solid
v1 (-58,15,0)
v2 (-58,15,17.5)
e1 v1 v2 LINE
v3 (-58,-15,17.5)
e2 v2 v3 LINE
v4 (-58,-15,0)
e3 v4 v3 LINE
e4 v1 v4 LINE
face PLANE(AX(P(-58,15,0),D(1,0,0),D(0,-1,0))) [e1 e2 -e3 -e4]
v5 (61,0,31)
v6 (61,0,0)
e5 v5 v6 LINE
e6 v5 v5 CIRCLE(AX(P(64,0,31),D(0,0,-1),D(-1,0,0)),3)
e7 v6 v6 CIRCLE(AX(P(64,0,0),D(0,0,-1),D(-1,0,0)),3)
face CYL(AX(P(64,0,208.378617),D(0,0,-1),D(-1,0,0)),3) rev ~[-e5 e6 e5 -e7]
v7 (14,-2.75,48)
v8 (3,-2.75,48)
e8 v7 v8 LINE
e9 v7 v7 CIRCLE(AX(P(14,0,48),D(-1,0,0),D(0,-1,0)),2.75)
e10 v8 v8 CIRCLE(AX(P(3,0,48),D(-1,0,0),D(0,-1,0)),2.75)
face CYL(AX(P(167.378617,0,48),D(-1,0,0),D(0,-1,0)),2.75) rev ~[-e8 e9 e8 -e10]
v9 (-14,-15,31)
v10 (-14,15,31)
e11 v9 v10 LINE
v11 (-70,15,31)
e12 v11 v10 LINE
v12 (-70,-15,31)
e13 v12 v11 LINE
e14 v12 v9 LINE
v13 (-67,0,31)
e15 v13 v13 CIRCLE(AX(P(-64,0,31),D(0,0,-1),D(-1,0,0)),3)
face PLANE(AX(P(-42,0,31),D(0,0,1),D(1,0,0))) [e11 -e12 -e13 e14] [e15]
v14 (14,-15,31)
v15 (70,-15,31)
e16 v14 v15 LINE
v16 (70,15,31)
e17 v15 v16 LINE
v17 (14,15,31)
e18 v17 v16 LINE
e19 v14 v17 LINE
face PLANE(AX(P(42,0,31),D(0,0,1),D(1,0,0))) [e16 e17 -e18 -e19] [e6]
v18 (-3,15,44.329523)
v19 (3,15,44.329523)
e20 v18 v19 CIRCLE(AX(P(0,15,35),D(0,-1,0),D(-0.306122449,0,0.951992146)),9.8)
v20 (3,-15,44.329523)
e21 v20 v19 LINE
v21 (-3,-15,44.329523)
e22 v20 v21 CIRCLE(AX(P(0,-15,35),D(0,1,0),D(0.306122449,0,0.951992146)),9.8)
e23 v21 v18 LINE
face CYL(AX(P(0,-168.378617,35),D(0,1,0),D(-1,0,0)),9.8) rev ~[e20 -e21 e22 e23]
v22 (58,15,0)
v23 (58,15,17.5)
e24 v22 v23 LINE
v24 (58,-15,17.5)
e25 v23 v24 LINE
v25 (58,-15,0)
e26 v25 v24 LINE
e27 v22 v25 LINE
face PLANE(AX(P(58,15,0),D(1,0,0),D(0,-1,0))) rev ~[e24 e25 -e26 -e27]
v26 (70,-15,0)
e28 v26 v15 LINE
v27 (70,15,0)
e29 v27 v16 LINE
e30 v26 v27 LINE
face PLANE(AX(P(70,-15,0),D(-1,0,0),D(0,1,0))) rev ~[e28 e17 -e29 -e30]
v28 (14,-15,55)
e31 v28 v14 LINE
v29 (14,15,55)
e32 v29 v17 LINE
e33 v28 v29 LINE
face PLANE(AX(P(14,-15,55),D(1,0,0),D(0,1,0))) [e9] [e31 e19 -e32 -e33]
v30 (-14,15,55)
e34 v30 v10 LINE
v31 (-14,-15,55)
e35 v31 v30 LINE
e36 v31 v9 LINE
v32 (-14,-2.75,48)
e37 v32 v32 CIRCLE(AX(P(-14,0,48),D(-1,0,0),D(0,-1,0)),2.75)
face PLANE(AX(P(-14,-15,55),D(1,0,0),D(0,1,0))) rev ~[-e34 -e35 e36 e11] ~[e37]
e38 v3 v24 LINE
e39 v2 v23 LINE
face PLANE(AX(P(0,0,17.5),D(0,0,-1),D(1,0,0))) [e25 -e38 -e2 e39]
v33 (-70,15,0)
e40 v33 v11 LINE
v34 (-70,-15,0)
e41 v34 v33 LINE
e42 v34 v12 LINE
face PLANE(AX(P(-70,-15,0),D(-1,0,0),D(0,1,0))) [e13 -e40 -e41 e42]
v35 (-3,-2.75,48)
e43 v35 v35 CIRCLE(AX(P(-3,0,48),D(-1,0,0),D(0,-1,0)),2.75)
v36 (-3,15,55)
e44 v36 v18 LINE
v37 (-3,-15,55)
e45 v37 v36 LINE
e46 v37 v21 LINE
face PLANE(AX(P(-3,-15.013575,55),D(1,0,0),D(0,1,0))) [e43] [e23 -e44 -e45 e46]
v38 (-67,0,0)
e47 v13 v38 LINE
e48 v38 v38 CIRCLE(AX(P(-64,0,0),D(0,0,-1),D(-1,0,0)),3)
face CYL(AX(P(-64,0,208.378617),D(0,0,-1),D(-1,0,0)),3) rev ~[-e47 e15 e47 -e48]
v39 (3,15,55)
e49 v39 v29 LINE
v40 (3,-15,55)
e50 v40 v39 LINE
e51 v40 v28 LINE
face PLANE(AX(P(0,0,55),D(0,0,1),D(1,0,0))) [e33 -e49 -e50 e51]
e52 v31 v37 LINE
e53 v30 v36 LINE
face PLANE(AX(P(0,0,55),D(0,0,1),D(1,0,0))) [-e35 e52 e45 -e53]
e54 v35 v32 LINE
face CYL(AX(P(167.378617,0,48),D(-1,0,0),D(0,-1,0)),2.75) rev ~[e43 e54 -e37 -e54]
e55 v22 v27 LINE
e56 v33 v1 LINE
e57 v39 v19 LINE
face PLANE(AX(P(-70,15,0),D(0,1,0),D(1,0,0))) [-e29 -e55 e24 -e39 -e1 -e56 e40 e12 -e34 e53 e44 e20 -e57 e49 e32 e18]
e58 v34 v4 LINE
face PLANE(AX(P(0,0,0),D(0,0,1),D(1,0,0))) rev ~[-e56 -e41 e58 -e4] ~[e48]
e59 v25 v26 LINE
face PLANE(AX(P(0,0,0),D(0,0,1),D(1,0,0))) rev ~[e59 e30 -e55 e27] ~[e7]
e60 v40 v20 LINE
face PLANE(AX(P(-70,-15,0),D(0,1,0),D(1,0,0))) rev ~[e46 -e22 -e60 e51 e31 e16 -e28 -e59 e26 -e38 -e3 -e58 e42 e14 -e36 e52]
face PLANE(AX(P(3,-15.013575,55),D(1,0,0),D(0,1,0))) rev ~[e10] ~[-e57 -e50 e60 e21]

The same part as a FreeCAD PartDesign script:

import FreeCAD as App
import Part
import Sketcher

V = App.Vector


def add_polygon(sketch, points):
    """Adds a closed chain of lines whose ends are joined by coincident constraints."""
    first, n = sketch.GeometryCount, len(points)
    for a, b in zip(points, points[1:] + points[:1]):
        sketch.addGeometry(Part.LineSegment(App.Vector(*a, 0), App.Vector(*b, 0)), False)
    for i in range(n):
        sketch.addConstraint(Sketcher.Constraint("Coincident", first + i, 2, first + (i + 1) % n, 1))

doc = App.newDocument("Part")
body = doc.addObject("PartDesign::Body", "Body")

# Sketch on XY plane
sketch1 = doc.addObject("Sketcher::SketchObject", "Sketch")
body.addObject(sketch1)
sketch1.AttachmentSupport = (doc.XY_Plane, [""])
sketch1.MapMode = "FlatFace"
add_polygon(sketch1, [(-70, 15), (-70, -15), (70, -15), (70, 15)])  # lines 0-3
sketch1.addConstraint(Sketcher.Constraint("Vertical", 0))
sketch1.addConstraint(Sketcher.Constraint("Horizontal", 1))
sketch1.addConstraint(Sketcher.Constraint("Vertical", 2))
sketch1.addConstraint(Sketcher.Constraint("Horizontal", 3))
sketch1.addConstraint(Sketcher.Constraint("Symmetric", 0, 2, 2, 2, -1, 1))
sketch1.addConstraint(Sketcher.Constraint("DistanceX", 1, 1, 1, 2, 140.0))
sketch1.addConstraint(Sketcher.Constraint("DistanceY", 0, 2, 0, 1, 30.0))
pad1 = doc.addObject("PartDesign::Pad", "Pad")
body.addObject(pad1)
pad1.Profile = sketch1
pad1.Length = 55

# Sketch on XY plane
sketch2 = doc.addObject("Sketcher::SketchObject", "Sketch001")
body.addObject(sketch2)
sketch2.AttachmentSupport = (doc.XY_Plane, [""])
sketch2.MapMode = "FlatFace"
add_polygon(sketch2, [(-58, -15), (-58, 15), (58, 15), (58, -15)])  # lines 0-3
sketch2.addConstraint(Sketcher.Constraint("Vertical", 0))
sketch2.addConstraint(Sketcher.Constraint("Horizontal", 1))
sketch2.addConstraint(Sketcher.Constraint("Vertical", 2))
sketch2.addConstraint(Sketcher.Constraint("Horizontal", 3))
sketch2.addConstraint(Sketcher.Constraint("Symmetric", 0, 2, 2, 2, -1, 1))
sketch2.addConstraint(Sketcher.Constraint("DistanceX", 1, 1, 1, 2, 116.0))
sketch2.addConstraint(Sketcher.Constraint("DistanceY", 0, 1, 0, 2, 30.0))
pocket1 = doc.addObject("PartDesign::Pocket", "Pocket")
body.addObject(pocket1)
pocket1.Profile = sketch2
pocket1.Length = 17.5
pocket1.Reversed = True

# Sketch on XZ plane
sketch3 = doc.addObject("Sketcher::SketchObject", "Sketch002")
body.addObject(sketch3)
sketch3.AttachmentSupport = (doc.XZ_Plane, [""])
sketch3.MapMode = "FlatFace"
sketch3.AttachmentOffset = App.Placement(V(0, 0, 15), App.Rotation())
sketch3.addGeometry(Part.Circle(V(0, 35, 0), V(0, 0, 1), 9.8), False)
sketch3.addConstraint(Sketcher.Constraint("PointOnObject", 0, 3, -2))
sketch3.addConstraint(Sketcher.Constraint("Diameter", 0, 19.6))
sketch3.addConstraint(Sketcher.Constraint("DistanceY", -1, 1, 0, 3, 35.0))
doc.recompute()
hole = doc.addObject("PartDesign::Hole", "Hole")
body.addObject(hole)
hole.Profile = sketch3
hole.ThreadType = "None"
hole.Diameter = 19.6
hole.DepthType = "ThroughAll"

# Sketch on XY plane
sketch4 = doc.addObject("Sketcher::SketchObject", "Sketch003")
body.addObject(sketch4)
sketch4.AttachmentSupport = (doc.XY_Plane, [""])
sketch4.MapMode = "FlatFace"
sketch4.AttachmentOffset = App.Placement(V(0, 0, 55), App.Rotation())
sketch4.addGeometry(Part.Circle(V(-64, 0, 0), V(0, 0, 1), 3), False)
sketch4.addConstraint(Sketcher.Constraint("PointOnObject", 0, 3, -1))
sketch4.addConstraint(Sketcher.Constraint("Diameter", 0, 6.0))
sketch4.addConstraint(Sketcher.Constraint("DistanceX", 0, 3, -1, 1, 64.0))
doc.recompute()
hole2 = doc.addObject("PartDesign::Hole", "Hole001")
body.addObject(hole2)
hole2.Profile = sketch4
hole2.ThreadType = "None"
hole2.Diameter = 6
hole2.DepthType = "ThroughAll"

# Sketch on XY plane
sketch5 = doc.addObject("Sketcher::SketchObject", "Sketch004")
body.addObject(sketch5)
sketch5.AttachmentSupport = (doc.XY_Plane, [""])
sketch5.MapMode = "FlatFace"
sketch5.AttachmentOffset = App.Placement(V(0, 0, 55), App.Rotation())
sketch5.addGeometry(Part.Circle(V(64, 0, 0), V(0, 0, 1), 3), False)
sketch5.addConstraint(Sketcher.Constraint("PointOnObject", 0, 3, -1))
sketch5.addConstraint(Sketcher.Constraint("Diameter", 0, 6.0))
sketch5.addConstraint(Sketcher.Constraint("DistanceX", -1, 1, 0, 3, 64.0))
doc.recompute()
hole3 = doc.addObject("PartDesign::Hole", "Hole002")
body.addObject(hole3)
hole3.Profile = sketch5
hole3.ThreadType = "None"
hole3.Diameter = 6
hole3.DepthType = "ThroughAll"

# Sketch on XY plane
sketch6 = doc.addObject("Sketcher::SketchObject", "Sketch005")
body.addObject(sketch6)
sketch6.AttachmentSupport = (doc.XY_Plane, [""])
sketch6.MapMode = "FlatFace"
sketch6.AttachmentOffset = App.Placement(V(0, 0, 55), App.Rotation())
add_polygon(sketch6, [(-70, 15), (-70, -15), (-14, -15), (-14, 15)])  # lines 0-3
sketch6.addGeometry(Part.Circle(V(-64, 0, 0), V(0, 0, 1), 3), False)  # 4
sketch6.addConstraint(Sketcher.Constraint("Vertical", 0))
sketch6.addConstraint(Sketcher.Constraint("Horizontal", 1))
sketch6.addConstraint(Sketcher.Constraint("Vertical", 2))
sketch6.addConstraint(Sketcher.Constraint("Horizontal", 3))
sketch6.addConstraint(Sketcher.Constraint("PointOnObject", 4, 3, -1))
sketch6.addConstraint(Sketcher.Constraint("Diameter", 4, 6.0))
sketch6.addConstraint(Sketcher.Constraint("DistanceX", 1, 1, 1, 2, 56.0))
sketch6.addConstraint(Sketcher.Constraint("DistanceY", 0, 2, 0, 1, 30.0))
sketch6.addConstraint(Sketcher.Constraint("DistanceX", 4, 3, -1, 1, 64.0))
sketch6.addConstraint(Sketcher.Constraint("DistanceX", 0, 2, -1, 1, 70.0))
sketch6.addConstraint(Sketcher.Constraint("DistanceY", 0, 2, -1, 1, 15.0))
pocket2 = doc.addObject("PartDesign::Pocket", "Pocket001")
body.addObject(pocket2)
pocket2.Profile = sketch6
pocket2.Length = 24

# Sketch on XY plane
sketch7 = doc.addObject("Sketcher::SketchObject", "Sketch006")
body.addObject(sketch7)
sketch7.AttachmentSupport = (doc.XY_Plane, [""])
sketch7.MapMode = "FlatFace"
sketch7.AttachmentOffset = App.Placement(V(0, 0, 55), App.Rotation())
add_polygon(sketch7, [(14, 15), (14, -15), (70, -15), (70, 15)])  # lines 0-3
sketch7.addGeometry(Part.Circle(V(64, 0, 0), V(0, 0, 1), 3), False)  # 4
sketch7.addConstraint(Sketcher.Constraint("Vertical", 0))
sketch7.addConstraint(Sketcher.Constraint("Horizontal", 1))
sketch7.addConstraint(Sketcher.Constraint("Vertical", 2))
sketch7.addConstraint(Sketcher.Constraint("Horizontal", 3))
sketch7.addConstraint(Sketcher.Constraint("PointOnObject", 4, 3, -1))
sketch7.addConstraint(Sketcher.Constraint("Diameter", 4, 6.0))
sketch7.addConstraint(Sketcher.Constraint("DistanceX", 1, 1, 1, 2, 56.0))
sketch7.addConstraint(Sketcher.Constraint("DistanceY", 0, 2, 0, 1, 30.0))
sketch7.addConstraint(Sketcher.Constraint("DistanceX", -1, 1, 4, 3, 64.0))
sketch7.addConstraint(Sketcher.Constraint("DistanceX", -1, 1, 0, 2, 14.0))
sketch7.addConstraint(Sketcher.Constraint("DistanceY", 0, 2, -1, 1, 15.0))
pocket3 = doc.addObject("PartDesign::Pocket", "Pocket002")
body.addObject(pocket3)
pocket3.Profile = sketch7
pocket3.Length = 24

# Sketch on YZ plane
sketch8 = doc.addObject("Sketcher::SketchObject", "Sketch007")
body.addObject(sketch8)
sketch8.AttachmentSupport = (doc.YZ_Plane, [""])
sketch8.MapMode = "FlatFace"
sketch8.AttachmentOffset = App.Placement(V(0, 0, 14), App.Rotation())
sketch8.addGeometry(Part.Circle(V(0, 48, 0), V(0, 0, 1), 2.75), False)
sketch8.addConstraint(Sketcher.Constraint("PointOnObject", 0, 3, -2))
sketch8.addConstraint(Sketcher.Constraint("Diameter", 0, 5.5))
sketch8.addConstraint(Sketcher.Constraint("DistanceY", -1, 1, 0, 3, 48.0))
doc.recompute()
hole4 = doc.addObject("PartDesign::Hole", "Hole003")
body.addObject(hole4)
hole4.Profile = sketch8
hole4.ThreadType = "None"
hole4.Diameter = 5.5
hole4.DepthType = "ThroughAll"

# Sketch on XY plane
sketch9 = doc.addObject("Sketcher::SketchObject", "Sketch008")
body.addObject(sketch9)
sketch9.AttachmentSupport = (doc.XY_Plane, [""])
sketch9.MapMode = "FlatFace"
sketch9.AttachmentOffset = App.Placement(V(0, 0, 55), App.Rotation())
add_polygon(sketch9, [(-3, 15.444496), (-3, -15.013575), (3, -15.013575), (3, 15.444496)])  # lines 0-3
sketch9.addConstraint(Sketcher.Constraint("Vertical", 0))
sketch9.addConstraint(Sketcher.Constraint("Horizontal", 1))
sketch9.addConstraint(Sketcher.Constraint("Vertical", 2))
sketch9.addConstraint(Sketcher.Constraint("Horizontal", 3))
sketch9.addConstraint(Sketcher.Constraint("DistanceX", 1, 1, 1, 2, 6.0))
sketch9.addConstraint(Sketcher.Constraint("DistanceX", 0, 2, -1, 1, 3.0))
sketch9.addConstraint(Sketcher.Constraint("DistanceY", 0, 2, 0, 1, 30.458071))
sketch9.addConstraint(Sketcher.Constraint("DistanceY", 0, 2, -1, 1, 15.013575))
pocket4 = doc.addObject("PartDesign::Pocket", "Pocket003")
body.addObject(pocket4)
pocket4.Profile = sketch9
pocket4.Length = 25

doc.recompute()
